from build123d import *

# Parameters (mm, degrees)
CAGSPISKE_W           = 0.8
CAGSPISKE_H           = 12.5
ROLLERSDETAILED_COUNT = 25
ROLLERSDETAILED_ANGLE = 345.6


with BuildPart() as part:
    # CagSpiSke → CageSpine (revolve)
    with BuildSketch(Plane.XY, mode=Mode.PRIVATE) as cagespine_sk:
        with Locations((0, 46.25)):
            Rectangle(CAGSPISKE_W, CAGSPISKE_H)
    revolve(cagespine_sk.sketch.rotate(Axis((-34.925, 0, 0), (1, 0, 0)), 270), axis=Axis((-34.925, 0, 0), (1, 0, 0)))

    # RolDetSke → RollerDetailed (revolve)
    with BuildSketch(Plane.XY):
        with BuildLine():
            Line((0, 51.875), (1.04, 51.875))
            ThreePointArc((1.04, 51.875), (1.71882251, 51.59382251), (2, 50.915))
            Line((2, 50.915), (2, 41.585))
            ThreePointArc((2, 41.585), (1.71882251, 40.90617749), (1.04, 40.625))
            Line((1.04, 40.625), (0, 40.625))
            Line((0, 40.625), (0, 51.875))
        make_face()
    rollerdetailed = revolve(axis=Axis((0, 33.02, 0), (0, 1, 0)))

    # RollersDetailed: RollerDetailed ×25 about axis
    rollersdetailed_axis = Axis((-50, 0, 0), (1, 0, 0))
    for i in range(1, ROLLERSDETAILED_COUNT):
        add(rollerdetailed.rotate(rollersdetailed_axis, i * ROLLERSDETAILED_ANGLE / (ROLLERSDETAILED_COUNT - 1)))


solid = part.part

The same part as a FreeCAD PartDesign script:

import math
import FreeCAD as App
import Part
import Sketcher

V = App.Vector
Q = App.Units.Quantity

doc = App.newDocument("Part")
body = doc.addObject("PartDesign::Body", "Body")

sketch1 = body.newObject("Sketcher::SketchObject", "Sketch")
sketch1.AttachmentSupport = (doc.getObject("XY_Plane"), [""])
sketch1.MapMode = "FlatFace"
sketch1.addGeometry([
    Part.LineSegment(V(-0.4, 52.5, 0), V(-0.4, 40, 0)),
    Part.LineSegment(V(-0.4, 40, 0), V(0.4, 40, 0)),
    Part.LineSegment(V(0.4, 40, 0), V(0.4, 52.5, 0)),
    Part.LineSegment(V(0.4, 52.5, 0), V(-0.4, 52.5, 0)),
], False)
sketch1.addConstraint([
    Sketcher.Constraint("Coincident", 0, 2, 1, 1),
    Sketcher.Constraint("Coincident", 1, 2, 2, 1),
    Sketcher.Constraint("Coincident", 2, 2, 3, 1),
    Sketcher.Constraint("Coincident", 3, 2, 0, 1),
    Sketcher.Constraint("Vertical", 0),
    Sketcher.Constraint("Horizontal", 1),
    Sketcher.Constraint("Vertical", 2),
    Sketcher.Constraint("Horizontal", 3),
    Sketcher.Constraint("DistanceX", 1, 1, 1, 2, Q("0.8 mm")),
    Sketcher.Constraint("DistanceY", 0, 2, 0, 1, Q("12.5 mm")),
    Sketcher.Constraint("DistanceY", -1, 1, 0, 2, Q("40 mm")),
    Sketcher.Constraint("DistanceX", 0, 2, -1, 1, Q("0.4 mm")),
])
revolution = body.newObject("PartDesign::Revolution", "Revolution")
revolution.Profile = sketch1
revolution.ReferenceAxis = (sketch1, ["H_Axis"])
revolution.Angle = 360

sketch2 = body.newObject("Sketcher::SketchObject", "Sketch001")
sketch2.AttachmentSupport = (doc.getObject("XY_Plane"), [""])
sketch2.MapMode = "FlatFace"
sketch2.addGeometry([
    Part.LineSegment(V(1, 51.9, 0), V(0, 51.9, 0)),
    Part.LineSegment(V(0, 51.9, 0), V(0, 40.6, 0)),
    Part.LineSegment(V(0, 40.6, 0), V(1, 40.6, 0)),
    Part.ArcOfCircle(Part.Circle(V(1, 41.6, 0), V(0, 0, 1), 1), math.radians(-90), math.radians(0)),
    Part.LineSegment(V(2, 41.6, 0), V(2, 50.9, 0)),
    Part.ArcOfCircle(Part.Circle(V(1, 50.9, 0), V(0, 0, 1), 1), math.radians(0), math.radians(90)),
], False)
sketch2.addConstraint([
    Sketcher.Constraint("Coincident", 0, 2, 1, 1),
    Sketcher.Constraint("Coincident", 1, 2, 2, 1),
    Sketcher.Constraint("Tangent", 2, 2, 3, 1),
    Sketcher.Constraint("Tangent", 3, 2, 4, 1),
    Sketcher.Constraint("Tangent", 4, 2, 5, 1),
    Sketcher.Constraint("Tangent", 5, 2, 0, 1),
    Sketcher.Constraint("Horizontal", 0),
    Sketcher.Constraint("Vertical", 1),
    Sketcher.Constraint("Horizontal", 2),
    Sketcher.Constraint("Vertical", 4),
    Sketcher.Constraint("Equal", 3, 5),
    Sketcher.Constraint("PointOnObject", 0, 2, -2),
    Sketcher.Constraint("Radius", 3, Q("0.96 mm")),
    Sketcher.Constraint("DistanceX", -1, 1, 3, 2, Q("2 mm")),
    Sketcher.Constraint("DistanceY", 1, 2, 1, 1, Q("11.25 mm")),
    Sketcher.Constraint("DistanceY", -1, 1, 3, 3, Q("41.585 mm")),
])
revolution2 = body.newObject("PartDesign::Revolution", "Revolution001")
revolution2.Profile = sketch2
revolution2.ReferenceAxis = (sketch2, ["V_Axis"])
revolution2.Angle = 360
doc.recompute()

polarpattern = body.newObject("PartDesign::PolarPattern", "PolarPattern")
polarpattern.Originals = [revolution2]
polarpattern.Axis = (doc.getObject("X_Axis"), [""])
polarpattern.Angle = 360
polarpattern.Occurrences = 25
body.Tip = polarpattern

doc.recompute()
